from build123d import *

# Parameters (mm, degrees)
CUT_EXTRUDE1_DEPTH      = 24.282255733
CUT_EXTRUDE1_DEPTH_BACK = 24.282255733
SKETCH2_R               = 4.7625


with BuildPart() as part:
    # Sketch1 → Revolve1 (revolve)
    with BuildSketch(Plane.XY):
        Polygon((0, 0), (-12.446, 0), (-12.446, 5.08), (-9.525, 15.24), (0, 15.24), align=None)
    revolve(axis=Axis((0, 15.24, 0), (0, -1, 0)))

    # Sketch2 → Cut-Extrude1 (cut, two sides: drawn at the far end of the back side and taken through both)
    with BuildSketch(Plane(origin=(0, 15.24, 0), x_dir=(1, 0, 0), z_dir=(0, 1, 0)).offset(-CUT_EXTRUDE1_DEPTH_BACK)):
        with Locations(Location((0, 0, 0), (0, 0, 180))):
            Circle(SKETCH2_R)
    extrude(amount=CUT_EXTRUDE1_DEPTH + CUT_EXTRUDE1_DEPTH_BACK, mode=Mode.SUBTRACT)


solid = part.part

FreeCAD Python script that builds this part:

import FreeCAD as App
import Part
import Sketcher
Q = App.Units.Quantity

doc = App.newDocument("Part")
body = doc.addObject("PartDesign::Body", "Body")

# Sketch on XY plane
sketch1 = body.newObject("Sketcher::SketchObject", "Sketch")
sketch1.AttachmentSupport = (doc.getObject("XY_Plane"), [""])
sketch1.MapMode = "FlatFace"
sketch1.addGeometry([
    Part.LineSegment(App.Vector(-12.446, 0, 0), App.Vector(0, 0, 0)),  # 0
    Part.LineSegment(App.Vector(0, 0, 0), App.Vector(0, 15.24, 0)),  # 1
    Part.LineSegment(App.Vector(0, 15.24, 0), App.Vector(-9.525, 15.24, 0)),  # 2
    Part.LineSegment(App.Vector(-9.525, 15.24, 0), App.Vector(-12.446, 5.08, 0)),  # 3
    Part.LineSegment(App.Vector(-12.446, 5.08, 0), App.Vector(-12.446, 0, 0)),  # 4
], False)
sketch1.addConstraint([
    Sketcher.Constraint("Coincident", 0, 2, 1, 1),
    Sketcher.Constraint("Coincident", 1, 2, 2, 1),
    Sketcher.Constraint("Coincident", 2, 2, 3, 1),
    Sketcher.Constraint("Coincident", 3, 2, 4, 1),
    Sketcher.Constraint("Coincident", 4, 2, 0, 1),
    Sketcher.Constraint("Horizontal", 0),
    Sketcher.Constraint("Vertical", 1),
    Sketcher.Constraint("Horizontal", 2),
    Sketcher.Constraint("Vertical", 4),
    Sketcher.Constraint("Coincident", 0, 2, -1, 1),
    Sketcher.Constraint("DistanceY", 1, 1, 1, 2, Q("0.6 in")),
    Sketcher.Constraint("DistanceY", 4, 2, 4, 1, Q("0.2 in")),
    Sketcher.Constraint("DistanceX", 0, 1, 0, 2, Q("0.49 in")),
    Sketcher.Constraint("DistanceX", 2, 2, 2, 1, Q("0.375 in")),
])
revolution = body.newObject("PartDesign::Revolution", "Revolution")
revolution.Profile = sketch1
revolution.ReferenceAxis = (sketch1, ["V_Axis"])
revolution.Angle = 360

# Sketch on XZ plane
sketch2 = body.newObject("Sketcher::SketchObject", "Sketch001")
sketch2.AttachmentSupport = (doc.getObject("XZ_Plane"), [""])
sketch2.MapMode = "FlatFace"
sketch2.AttachmentOffset = App.Placement(App.Vector(0, 0, -0.6 * 25.4), App.Rotation())
sketch2.addGeometry(Part.Circle(App.Vector(0, 0, 0), App.Vector(0, 0, 1), 4.7625), False)
sketch2.addConstraint([
    Sketcher.Constraint("Coincident", 0, 3, -1, 1),
    Sketcher.Constraint("Diameter", 0, Q("0.375 in")),
])
pocket1 = body.newObject("PartDesign::Pocket", "Pocket")
pocket1.Profile = sketch2
pocket1.Type = "ThroughAll"
pocket1.Midplane = True

doc.recompute()
